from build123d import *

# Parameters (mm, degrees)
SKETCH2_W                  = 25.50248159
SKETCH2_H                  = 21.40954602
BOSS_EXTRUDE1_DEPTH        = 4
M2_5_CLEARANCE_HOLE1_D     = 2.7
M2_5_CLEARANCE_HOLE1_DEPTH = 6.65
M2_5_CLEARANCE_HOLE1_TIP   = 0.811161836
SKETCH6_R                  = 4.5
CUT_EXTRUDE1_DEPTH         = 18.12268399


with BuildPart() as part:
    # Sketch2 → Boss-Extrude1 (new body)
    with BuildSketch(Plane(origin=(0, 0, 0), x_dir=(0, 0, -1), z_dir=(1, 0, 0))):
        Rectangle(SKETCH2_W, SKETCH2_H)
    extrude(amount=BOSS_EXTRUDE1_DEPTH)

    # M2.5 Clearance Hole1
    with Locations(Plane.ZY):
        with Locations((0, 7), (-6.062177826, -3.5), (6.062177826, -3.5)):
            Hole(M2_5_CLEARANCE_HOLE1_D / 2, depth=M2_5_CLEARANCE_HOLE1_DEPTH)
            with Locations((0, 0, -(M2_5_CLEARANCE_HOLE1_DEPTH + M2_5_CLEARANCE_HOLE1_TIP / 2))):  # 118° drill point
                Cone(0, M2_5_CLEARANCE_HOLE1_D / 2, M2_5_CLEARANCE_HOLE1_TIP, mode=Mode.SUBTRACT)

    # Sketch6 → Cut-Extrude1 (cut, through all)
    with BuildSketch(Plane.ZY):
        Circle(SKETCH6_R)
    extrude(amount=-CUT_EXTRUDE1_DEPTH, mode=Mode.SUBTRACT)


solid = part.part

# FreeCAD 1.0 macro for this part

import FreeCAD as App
import Part
import Sketcher
Q = App.Units.Quantity

doc = App.newDocument("Part")
body = doc.addObject("PartDesign::Body", "Body")

sketch1 = body.newObject("Sketcher::SketchObject", "Sketch")
sketch1.AttachmentSupport = (doc.getObject("YZ_Plane"), [""])
sketch1.MapMode = "FlatFace"
sketch1.addGeometry(Part.LineSegment(App.Vector(10.704773, 12.751241, 0), App.Vector(-10.704773, 12.751241, 0)), False)
sketch1.addGeometry(Part.LineSegment(App.Vector(-10.704773, 12.751241, 0), App.Vector(-10.704773, -12.751241, 0)), False)
sketch1.addGeometry(Part.LineSegment(App.Vector(-10.704773, -12.751241, 0), App.Vector(10.704773, -12.751241, 0)), False)
sketch1.addGeometry(Part.LineSegment(App.Vector(10.704773, -12.751241, 0), App.Vector(10.704773, 12.751241, 0)), False)
sketch1.addConstraint(Sketcher.Constraint("Coincident", 0, 2, 1, 1))
sketch1.addConstraint(Sketcher.Constraint("Coincident", 1, 2, 2, 1))
sketch1.addConstraint(Sketcher.Constraint("Coincident", 2, 2, 3, 1))
sketch1.addConstraint(Sketcher.Constraint("Coincident", 3, 2, 0, 1))
sketch1.addConstraint(Sketcher.Constraint("Horizontal", 0))
sketch1.addConstraint(Sketcher.Constraint("Vertical", 1))
sketch1.addConstraint(Sketcher.Constraint("Horizontal", 2))
sketch1.addConstraint(Sketcher.Constraint("Vertical", 3))
sketch1.addConstraint(Sketcher.Constraint("Symmetric", 0, 2, 2, 2, -1, 1))
sketch1.addConstraint(Sketcher.Constraint("DistanceY", 1, 2, 1, 1, Q("25.502482 mm")))
sketch1.addConstraint(Sketcher.Constraint("DistanceX", 0, 2, 0, 1, Q("21.409546 mm")))
pad1 = body.newObject("PartDesign::Pad", "Pad")
pad1.Profile = sketch1
pad1.Length = 4

sketch2 = body.newObject("Sketcher::SketchObject", "Sketch001")
sketch2.AttachmentSupport = (doc.getObject("YZ_Plane"), [""])
sketch2.MapMode = "FlatFace"
sketch2.addGeometry(Part.Circle(App.Vector(7, 0, 0), App.Vector(0, 0, 1), 1.35), False)
sketch2.addGeometry(Part.Circle(App.Vector(-3.5, -6.062178, 0), App.Vector(0, 0, 1), 1.35), False)
sketch2.addGeometry(Part.Circle(App.Vector(-3.5, 6.062178, 0), App.Vector(0, 0, 1), 1.35), False)
sketch2.addConstraint(Sketcher.Constraint("Equal", 0, 1))
sketch2.addConstraint(Sketcher.Constraint("Equal", 1, 2))
sketch2.addConstraint(Sketcher.Constraint("Symmetric", 1, 3, 2, 3, -1))
sketch2.addConstraint(Sketcher.Constraint("PointOnObject", 0, 3, -1))
sketch2.addConstraint(Sketcher.Constraint("Diameter", 0, Q("2.7 mm")))
sketch2.addConstraint(Sketcher.Constraint("DistanceX", -1, 1, 0, 3, Q("7 mm")))
sketch2.addConstraint(Sketcher.Constraint("DistanceX", 1, 3, -1, 1, Q("3.5 mm")))
sketch2.addConstraint(Sketcher.Constraint("DistanceY", 1, 3, -1, 1, Q("6.062178 mm")))
doc.recompute()
hole = body.newObject("PartDesign::Hole", "Hole")
hole.Profile = sketch2
hole.ThreadType = "None"
hole.Diameter = 2.7
hole.DepthType = "Dimension"
hole.Depth = 6.65
hole.DrillPoint = "Angled"
hole.DrillPointAngle = 118
hole.Reversed = True

sketch3 = body.newObject("Sketcher::SketchObject", "Sketch002")
sketch3.AttachmentSupport = (doc.getObject("YZ_Plane"), [""])
sketch3.MapMode = "FlatFace"
sketch3.addGeometry(Part.Circle(App.Vector(0, 0, 0), App.Vector(0, 0, 1), 4.5), False)
sketch3.addConstraint(Sketcher.Constraint("Coincident", 0, 3, -1, 1))
sketch3.addConstraint(Sketcher.Constraint("Diameter", 0, Q("9 mm")))
pocket1 = body.newObject("PartDesign::Pocket", "Pocket")
pocket1.Profile = sketch3
pocket1.Type = "ThroughAll"
pocket1.Reversed = True

doc.recompute()
